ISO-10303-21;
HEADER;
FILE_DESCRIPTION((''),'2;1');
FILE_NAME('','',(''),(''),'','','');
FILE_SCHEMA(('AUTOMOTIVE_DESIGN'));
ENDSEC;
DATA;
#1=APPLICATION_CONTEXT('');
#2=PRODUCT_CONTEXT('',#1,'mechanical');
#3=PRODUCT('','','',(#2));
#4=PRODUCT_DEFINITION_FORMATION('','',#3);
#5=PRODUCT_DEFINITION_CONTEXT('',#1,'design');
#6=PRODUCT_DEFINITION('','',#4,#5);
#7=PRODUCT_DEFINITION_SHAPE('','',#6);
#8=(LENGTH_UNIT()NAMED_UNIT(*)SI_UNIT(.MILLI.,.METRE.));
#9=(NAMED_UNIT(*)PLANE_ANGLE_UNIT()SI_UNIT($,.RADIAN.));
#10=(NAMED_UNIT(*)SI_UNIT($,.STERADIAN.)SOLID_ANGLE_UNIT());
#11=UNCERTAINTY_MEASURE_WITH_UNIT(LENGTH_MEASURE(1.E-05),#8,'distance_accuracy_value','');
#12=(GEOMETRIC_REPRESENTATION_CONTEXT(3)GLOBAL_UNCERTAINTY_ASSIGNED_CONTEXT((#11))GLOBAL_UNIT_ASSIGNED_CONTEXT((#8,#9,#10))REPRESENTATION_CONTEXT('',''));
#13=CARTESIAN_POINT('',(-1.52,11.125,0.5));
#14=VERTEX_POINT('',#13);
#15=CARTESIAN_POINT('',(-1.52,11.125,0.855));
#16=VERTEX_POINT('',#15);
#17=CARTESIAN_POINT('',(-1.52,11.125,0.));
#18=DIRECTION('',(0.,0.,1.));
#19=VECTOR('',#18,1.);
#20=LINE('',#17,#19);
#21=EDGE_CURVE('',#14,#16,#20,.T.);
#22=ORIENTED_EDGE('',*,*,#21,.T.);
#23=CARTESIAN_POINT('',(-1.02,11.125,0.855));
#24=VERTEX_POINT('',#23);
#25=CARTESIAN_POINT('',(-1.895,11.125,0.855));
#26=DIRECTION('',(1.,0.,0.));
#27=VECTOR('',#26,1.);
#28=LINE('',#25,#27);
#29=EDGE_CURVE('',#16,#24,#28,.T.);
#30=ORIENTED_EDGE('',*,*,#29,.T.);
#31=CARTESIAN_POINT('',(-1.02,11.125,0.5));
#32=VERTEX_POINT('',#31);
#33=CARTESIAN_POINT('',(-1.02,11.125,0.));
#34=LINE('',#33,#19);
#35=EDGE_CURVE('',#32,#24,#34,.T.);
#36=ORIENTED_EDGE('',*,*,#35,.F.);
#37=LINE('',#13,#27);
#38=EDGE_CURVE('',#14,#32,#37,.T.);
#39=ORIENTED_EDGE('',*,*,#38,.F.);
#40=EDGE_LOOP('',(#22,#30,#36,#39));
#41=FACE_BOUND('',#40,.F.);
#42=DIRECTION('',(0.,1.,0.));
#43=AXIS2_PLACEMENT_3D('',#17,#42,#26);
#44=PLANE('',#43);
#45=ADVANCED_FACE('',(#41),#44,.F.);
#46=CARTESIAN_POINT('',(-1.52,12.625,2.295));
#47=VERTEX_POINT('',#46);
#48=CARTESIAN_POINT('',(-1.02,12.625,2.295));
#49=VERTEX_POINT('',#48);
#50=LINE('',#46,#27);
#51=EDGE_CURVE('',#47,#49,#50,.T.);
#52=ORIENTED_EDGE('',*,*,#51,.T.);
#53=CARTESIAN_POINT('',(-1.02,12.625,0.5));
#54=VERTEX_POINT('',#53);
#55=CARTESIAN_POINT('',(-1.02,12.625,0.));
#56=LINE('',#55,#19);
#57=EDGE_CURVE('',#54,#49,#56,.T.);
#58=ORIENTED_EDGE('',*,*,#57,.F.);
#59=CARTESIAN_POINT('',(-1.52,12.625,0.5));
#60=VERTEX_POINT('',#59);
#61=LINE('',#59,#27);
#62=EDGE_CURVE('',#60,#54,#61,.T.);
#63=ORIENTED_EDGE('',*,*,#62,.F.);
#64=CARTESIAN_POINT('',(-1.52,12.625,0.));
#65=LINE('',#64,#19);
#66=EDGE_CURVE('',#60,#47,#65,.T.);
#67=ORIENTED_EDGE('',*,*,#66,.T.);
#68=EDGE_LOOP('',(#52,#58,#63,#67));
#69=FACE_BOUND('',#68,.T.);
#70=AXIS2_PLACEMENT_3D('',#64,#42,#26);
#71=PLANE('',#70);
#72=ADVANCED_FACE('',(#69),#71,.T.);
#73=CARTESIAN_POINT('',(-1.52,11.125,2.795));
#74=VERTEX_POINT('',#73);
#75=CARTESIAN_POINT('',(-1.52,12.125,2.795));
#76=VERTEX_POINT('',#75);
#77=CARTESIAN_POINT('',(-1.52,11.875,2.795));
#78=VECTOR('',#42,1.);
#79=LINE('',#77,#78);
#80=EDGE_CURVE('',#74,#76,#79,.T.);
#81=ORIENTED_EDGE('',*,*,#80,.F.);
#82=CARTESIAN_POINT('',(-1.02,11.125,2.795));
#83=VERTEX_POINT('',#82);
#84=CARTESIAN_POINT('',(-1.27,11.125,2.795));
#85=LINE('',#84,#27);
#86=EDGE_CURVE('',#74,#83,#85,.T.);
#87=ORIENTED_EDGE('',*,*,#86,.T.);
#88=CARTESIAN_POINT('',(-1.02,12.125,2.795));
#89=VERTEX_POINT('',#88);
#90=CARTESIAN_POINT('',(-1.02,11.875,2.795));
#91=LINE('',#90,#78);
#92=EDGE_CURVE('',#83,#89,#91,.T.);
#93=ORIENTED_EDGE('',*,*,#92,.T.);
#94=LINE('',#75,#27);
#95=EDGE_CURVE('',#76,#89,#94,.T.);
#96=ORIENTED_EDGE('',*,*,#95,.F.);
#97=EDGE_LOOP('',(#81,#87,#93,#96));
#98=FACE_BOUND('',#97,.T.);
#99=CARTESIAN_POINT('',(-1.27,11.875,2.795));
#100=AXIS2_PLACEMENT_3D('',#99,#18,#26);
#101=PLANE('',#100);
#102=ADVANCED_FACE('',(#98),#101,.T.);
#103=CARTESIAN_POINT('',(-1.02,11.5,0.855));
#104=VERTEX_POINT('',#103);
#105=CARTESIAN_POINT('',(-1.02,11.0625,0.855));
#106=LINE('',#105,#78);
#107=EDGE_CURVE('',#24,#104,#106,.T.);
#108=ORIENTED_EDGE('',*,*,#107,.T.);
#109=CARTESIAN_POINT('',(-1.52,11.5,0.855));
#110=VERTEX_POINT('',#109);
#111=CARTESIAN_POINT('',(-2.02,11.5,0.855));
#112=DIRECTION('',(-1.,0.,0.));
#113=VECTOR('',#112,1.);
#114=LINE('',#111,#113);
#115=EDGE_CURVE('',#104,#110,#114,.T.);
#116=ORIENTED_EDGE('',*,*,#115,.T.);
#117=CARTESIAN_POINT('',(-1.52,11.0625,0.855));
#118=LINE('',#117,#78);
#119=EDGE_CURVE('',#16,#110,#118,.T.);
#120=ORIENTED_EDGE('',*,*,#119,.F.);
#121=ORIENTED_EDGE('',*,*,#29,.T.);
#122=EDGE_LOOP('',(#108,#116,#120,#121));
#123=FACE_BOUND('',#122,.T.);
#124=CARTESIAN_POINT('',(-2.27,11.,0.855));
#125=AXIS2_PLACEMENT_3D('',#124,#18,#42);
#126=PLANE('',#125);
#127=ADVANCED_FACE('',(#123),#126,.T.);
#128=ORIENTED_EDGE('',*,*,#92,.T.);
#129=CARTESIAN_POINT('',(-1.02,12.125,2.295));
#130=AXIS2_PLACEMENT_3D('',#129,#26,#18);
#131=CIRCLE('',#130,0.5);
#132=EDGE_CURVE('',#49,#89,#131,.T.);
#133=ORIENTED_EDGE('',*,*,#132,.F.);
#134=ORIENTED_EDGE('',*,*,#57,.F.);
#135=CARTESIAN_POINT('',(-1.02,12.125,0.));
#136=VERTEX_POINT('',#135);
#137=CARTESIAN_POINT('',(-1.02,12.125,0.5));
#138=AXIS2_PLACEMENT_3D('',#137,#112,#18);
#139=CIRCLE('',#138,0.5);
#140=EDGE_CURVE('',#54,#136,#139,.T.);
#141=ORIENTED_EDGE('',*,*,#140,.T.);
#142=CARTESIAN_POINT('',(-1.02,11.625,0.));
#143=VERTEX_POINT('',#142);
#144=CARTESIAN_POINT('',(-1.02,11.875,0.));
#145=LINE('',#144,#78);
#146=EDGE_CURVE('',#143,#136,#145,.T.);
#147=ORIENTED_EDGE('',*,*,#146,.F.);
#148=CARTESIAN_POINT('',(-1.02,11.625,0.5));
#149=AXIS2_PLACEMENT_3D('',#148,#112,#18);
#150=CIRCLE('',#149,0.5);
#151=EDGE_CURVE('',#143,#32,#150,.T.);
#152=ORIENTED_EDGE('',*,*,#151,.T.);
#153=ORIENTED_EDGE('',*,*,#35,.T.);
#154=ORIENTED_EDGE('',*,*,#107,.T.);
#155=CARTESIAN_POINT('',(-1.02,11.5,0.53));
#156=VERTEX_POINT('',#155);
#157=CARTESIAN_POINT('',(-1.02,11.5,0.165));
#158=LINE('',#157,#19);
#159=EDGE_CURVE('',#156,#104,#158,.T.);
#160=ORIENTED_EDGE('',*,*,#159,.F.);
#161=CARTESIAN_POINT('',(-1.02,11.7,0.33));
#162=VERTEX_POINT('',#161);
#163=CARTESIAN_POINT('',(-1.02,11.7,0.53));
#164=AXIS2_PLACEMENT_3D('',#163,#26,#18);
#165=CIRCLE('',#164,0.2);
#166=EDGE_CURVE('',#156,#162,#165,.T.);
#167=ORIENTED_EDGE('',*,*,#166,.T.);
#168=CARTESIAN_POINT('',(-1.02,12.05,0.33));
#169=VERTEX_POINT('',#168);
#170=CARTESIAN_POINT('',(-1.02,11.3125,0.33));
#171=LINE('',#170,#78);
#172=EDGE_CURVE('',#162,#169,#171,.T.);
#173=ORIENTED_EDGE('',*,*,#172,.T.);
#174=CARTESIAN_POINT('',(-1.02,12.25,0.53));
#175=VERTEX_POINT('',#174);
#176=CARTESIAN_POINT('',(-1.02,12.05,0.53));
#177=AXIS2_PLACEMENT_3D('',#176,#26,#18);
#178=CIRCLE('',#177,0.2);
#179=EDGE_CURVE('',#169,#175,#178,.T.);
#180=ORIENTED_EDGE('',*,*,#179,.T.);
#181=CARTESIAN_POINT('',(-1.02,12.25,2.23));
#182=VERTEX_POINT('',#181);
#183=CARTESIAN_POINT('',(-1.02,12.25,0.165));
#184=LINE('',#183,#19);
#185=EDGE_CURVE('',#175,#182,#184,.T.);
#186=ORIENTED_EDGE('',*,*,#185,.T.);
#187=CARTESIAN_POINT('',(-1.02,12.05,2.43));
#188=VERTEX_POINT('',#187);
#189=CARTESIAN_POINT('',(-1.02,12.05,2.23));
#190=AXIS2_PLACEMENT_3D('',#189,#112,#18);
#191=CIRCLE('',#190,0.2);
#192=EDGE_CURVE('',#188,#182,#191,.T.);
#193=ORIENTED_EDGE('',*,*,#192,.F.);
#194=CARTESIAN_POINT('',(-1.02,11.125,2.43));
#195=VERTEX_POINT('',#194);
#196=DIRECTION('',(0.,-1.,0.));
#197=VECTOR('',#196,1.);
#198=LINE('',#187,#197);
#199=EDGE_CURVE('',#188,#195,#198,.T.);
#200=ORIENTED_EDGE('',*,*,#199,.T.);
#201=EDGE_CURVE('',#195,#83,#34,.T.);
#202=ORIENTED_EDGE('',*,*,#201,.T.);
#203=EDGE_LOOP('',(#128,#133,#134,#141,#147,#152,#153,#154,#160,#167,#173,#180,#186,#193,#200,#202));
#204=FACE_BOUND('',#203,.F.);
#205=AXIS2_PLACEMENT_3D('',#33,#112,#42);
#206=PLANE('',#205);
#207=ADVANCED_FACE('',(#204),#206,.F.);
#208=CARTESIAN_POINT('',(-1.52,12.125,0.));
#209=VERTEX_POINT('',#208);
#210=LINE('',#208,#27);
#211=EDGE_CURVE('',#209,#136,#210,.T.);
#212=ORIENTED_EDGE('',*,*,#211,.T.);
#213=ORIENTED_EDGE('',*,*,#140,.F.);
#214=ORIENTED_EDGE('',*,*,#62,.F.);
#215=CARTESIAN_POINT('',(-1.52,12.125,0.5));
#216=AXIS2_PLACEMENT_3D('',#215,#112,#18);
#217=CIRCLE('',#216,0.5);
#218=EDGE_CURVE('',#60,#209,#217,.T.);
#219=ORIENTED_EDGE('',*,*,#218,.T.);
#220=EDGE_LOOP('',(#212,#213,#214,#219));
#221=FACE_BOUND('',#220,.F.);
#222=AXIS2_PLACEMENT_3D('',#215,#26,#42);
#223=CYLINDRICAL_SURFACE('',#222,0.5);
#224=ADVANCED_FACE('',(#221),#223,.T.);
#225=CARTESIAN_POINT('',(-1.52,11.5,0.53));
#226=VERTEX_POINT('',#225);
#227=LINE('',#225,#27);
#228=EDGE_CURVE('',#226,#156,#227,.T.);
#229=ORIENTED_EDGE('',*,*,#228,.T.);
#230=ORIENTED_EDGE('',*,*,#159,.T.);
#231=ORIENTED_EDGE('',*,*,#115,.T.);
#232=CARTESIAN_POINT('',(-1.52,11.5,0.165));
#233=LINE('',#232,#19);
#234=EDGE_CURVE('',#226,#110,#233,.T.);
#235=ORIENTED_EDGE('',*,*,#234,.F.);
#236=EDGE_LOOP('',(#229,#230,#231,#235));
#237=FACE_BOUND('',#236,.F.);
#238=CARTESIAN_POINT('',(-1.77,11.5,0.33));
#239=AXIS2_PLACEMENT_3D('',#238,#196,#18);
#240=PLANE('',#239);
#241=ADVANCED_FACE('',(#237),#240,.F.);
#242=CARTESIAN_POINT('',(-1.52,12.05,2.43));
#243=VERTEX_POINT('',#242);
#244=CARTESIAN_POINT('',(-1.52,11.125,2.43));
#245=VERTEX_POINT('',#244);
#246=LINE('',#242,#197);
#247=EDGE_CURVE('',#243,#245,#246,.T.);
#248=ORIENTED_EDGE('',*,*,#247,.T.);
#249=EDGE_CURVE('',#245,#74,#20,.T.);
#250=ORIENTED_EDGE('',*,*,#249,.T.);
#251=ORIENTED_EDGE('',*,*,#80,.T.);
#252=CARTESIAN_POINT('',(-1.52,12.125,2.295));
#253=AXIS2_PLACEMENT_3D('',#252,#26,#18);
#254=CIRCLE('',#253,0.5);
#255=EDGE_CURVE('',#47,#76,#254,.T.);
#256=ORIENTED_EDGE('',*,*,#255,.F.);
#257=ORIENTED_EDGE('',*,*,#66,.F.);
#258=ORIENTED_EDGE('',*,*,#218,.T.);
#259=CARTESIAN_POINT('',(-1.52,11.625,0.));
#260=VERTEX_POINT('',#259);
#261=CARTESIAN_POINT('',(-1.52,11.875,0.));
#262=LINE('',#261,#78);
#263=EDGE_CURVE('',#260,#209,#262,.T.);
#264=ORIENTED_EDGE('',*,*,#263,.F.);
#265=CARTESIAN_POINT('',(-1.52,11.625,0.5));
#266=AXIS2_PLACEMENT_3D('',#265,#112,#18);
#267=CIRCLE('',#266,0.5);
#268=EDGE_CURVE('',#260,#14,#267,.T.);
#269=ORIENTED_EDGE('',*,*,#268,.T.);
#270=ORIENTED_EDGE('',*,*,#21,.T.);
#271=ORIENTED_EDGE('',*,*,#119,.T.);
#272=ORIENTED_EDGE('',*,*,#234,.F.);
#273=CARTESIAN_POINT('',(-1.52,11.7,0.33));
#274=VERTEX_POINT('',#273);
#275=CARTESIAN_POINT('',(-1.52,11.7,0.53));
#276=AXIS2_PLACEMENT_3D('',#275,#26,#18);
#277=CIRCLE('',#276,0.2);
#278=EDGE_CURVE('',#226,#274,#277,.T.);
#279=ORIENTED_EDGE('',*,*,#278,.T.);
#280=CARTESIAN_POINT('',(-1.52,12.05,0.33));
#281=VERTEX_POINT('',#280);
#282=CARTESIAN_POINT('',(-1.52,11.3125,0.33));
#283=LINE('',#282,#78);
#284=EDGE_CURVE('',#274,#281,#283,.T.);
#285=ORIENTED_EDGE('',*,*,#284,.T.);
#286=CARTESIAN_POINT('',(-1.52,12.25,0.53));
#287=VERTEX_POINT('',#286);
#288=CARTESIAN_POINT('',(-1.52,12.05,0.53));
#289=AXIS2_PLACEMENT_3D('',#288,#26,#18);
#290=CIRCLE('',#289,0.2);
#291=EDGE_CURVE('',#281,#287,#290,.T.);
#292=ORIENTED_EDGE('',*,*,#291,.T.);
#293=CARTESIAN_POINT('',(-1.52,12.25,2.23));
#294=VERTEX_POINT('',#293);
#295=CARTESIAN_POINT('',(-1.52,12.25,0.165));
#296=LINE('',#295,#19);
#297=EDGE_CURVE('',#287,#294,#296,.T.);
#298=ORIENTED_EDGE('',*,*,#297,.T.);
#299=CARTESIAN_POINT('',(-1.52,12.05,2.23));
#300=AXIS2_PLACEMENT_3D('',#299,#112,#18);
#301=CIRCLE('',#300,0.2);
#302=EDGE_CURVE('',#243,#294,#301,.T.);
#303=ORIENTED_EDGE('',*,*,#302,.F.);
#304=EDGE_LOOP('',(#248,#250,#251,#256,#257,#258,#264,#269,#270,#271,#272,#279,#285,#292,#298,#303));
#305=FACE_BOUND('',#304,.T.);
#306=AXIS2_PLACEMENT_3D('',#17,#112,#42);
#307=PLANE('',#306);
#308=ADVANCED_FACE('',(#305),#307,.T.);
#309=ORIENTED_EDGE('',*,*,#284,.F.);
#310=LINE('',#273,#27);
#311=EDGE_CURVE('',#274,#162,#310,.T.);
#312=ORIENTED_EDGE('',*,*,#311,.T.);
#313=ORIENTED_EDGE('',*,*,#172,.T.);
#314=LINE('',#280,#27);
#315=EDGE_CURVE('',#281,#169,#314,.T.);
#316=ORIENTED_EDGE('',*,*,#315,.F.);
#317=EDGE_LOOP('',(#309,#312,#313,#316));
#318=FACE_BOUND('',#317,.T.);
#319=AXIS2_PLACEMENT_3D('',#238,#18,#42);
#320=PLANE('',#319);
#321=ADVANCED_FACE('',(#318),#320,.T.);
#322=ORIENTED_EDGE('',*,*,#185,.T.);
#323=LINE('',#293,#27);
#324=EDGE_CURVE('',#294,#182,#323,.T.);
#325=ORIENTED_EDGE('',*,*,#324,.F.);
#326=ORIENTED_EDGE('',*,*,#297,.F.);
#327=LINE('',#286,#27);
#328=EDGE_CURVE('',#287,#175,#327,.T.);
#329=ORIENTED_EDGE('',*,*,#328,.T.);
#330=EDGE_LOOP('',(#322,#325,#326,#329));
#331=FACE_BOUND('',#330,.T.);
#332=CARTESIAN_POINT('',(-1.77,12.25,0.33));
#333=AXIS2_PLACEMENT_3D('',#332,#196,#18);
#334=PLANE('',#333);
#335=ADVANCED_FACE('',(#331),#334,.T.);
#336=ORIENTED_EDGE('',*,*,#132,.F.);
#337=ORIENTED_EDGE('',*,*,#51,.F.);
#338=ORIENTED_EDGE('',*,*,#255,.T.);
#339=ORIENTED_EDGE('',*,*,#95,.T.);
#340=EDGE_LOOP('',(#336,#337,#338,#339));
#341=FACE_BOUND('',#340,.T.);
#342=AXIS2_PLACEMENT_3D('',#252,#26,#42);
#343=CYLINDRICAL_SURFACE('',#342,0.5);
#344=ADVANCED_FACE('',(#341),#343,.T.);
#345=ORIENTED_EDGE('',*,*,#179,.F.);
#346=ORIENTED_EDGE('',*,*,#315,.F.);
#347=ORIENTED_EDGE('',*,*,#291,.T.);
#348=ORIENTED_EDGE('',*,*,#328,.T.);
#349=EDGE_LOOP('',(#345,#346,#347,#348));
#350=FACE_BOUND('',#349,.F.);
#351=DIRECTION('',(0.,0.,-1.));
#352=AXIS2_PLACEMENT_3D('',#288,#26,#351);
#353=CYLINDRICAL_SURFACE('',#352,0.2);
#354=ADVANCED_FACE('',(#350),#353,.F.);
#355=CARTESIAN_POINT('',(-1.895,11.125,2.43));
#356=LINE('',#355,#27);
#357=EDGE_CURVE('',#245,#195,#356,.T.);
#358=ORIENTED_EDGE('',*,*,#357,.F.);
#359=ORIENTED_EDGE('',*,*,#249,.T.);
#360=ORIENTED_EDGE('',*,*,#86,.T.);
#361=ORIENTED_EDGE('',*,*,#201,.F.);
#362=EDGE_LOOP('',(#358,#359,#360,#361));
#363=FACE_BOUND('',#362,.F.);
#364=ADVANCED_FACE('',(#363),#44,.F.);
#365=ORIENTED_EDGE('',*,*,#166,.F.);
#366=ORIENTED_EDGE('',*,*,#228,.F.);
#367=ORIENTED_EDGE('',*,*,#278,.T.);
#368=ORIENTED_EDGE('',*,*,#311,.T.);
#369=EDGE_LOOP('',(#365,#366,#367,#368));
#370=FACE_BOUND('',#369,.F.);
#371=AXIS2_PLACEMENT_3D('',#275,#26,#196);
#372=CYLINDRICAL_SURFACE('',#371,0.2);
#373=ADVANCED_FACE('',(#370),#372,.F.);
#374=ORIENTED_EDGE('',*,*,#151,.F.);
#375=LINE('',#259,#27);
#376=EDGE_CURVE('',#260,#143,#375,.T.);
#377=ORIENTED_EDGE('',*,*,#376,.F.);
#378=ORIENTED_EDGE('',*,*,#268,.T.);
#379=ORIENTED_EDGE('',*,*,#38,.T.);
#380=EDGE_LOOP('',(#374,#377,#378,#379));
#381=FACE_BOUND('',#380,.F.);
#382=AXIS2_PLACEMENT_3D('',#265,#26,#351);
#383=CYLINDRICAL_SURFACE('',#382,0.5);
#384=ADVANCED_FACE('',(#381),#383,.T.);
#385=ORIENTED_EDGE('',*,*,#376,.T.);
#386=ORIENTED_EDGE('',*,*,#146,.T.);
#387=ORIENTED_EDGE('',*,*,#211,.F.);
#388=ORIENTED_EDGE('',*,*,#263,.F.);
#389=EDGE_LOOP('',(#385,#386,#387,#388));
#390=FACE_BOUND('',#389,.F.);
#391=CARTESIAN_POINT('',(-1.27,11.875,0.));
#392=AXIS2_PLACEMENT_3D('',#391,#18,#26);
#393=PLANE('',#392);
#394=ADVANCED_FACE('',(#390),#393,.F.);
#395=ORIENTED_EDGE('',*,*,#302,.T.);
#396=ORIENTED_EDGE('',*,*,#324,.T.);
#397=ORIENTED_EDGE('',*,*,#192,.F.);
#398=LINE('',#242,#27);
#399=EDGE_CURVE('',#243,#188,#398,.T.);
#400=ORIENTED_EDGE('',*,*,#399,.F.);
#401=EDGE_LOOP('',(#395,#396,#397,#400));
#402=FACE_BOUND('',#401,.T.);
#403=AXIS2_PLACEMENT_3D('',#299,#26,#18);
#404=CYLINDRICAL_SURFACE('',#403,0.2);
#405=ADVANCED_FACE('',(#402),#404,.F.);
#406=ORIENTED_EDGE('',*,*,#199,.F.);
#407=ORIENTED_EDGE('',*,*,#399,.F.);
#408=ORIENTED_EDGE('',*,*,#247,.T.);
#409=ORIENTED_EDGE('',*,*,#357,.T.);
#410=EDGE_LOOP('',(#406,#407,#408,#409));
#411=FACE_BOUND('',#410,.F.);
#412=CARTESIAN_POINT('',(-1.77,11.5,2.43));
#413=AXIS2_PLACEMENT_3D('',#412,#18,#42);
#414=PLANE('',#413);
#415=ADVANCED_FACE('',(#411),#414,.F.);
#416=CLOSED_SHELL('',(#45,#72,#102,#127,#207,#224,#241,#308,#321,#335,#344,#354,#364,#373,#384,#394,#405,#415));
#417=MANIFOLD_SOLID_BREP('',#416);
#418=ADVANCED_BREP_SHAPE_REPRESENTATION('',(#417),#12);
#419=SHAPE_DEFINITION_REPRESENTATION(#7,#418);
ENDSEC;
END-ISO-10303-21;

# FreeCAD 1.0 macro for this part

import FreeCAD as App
import Part
import Sketcher
from FreeCAD import Vector
Q = App.Units.Quantity


def edges_at(feature, points):
    """Names of the edges that pass closest to the given points."""
    edges = feature.Shape.Edges
    near = lambda p: min(range(len(edges)), key=lambda i: edges[i].distToShape(Part.Vertex(*p))[0])
    return sorted({f"Edge{near(p) + 1}" for p in points})

doc = App.newDocument("Part")
body = doc.addObject("PartDesign::Body", "Body")

# Sketch on XY plane
sketch1 = doc.addObject("Sketcher::SketchObject", "Sketch")
body.addObject(sketch1)
sketch1.AttachmentSupport = (doc.XY_Plane, [""])
sketch1.MapMode = "FlatFace"
sketch1.addGeometry([
    Part.LineSegment(Vector(-0.2, 12.6, 0), Vector(-0.2, 11.1, 0)),
    Part.LineSegment(Vector(-0.2, 11.1, 0), Vector(0.2, 11.1, 0)),
    Part.LineSegment(Vector(0.2, 11.1, 0), Vector(0.2, 12.6, 0)),
    Part.LineSegment(Vector(0.2, 12.6, 0), Vector(-0.2, 12.6, 0)),
], False)
sketch1.addConstraint([
    Sketcher.Constraint("Coincident", 0, 2, 1, 1),
    Sketcher.Constraint("Coincident", 1, 2, 2, 1),
    Sketcher.Constraint("Coincident", 2, 2, 3, 1),
    Sketcher.Constraint("Coincident", 3, 2, 0, 1),
    Sketcher.Constraint("Vertical", 0),
    Sketcher.Constraint("Horizontal", 1),
    Sketcher.Constraint("Vertical", 2),
    Sketcher.Constraint("Horizontal", 3),
    Sketcher.Constraint("DistanceX", 1, 1, 1, 2, Q("0.5 mm")),
    Sketcher.Constraint("DistanceY", 0, 2, 0, 1, Q("1.5 mm")),
    Sketcher.Constraint("DistanceX", 0, 2, -1, 1, Q("0.25 mm")),
    Sketcher.Constraint("DistanceY", -1, 1, 0, 2, Q("11.125 mm")),
])
pad1 = doc.addObject("PartDesign::Pad", "Pad")
body.addObject(pad1)
pad1.Profile = sketch1
pad1.Length = 2.795
doc.recompute()

fillet = doc.addObject("PartDesign::Fillet", "Fillet")
body.addObject(fillet)
fillet.Base = (pad1, edges_at(pad1, [(0, 12.625, 0)]))
fillet.Radius = 0.5
doc.recompute()

fillet2 = doc.addObject("PartDesign::Fillet", "Fillet001")
body.addObject(fillet2)
fillet2.Base = (fillet, edges_at(fillet, [(0, 12.625, 2.795)]))
fillet2.Radius = 0.5
doc.recompute()

fillet3 = doc.addObject("PartDesign::Fillet", "Fillet002")
body.addObject(fillet3)
fillet3.Base = (fillet2, edges_at(fillet2, [(0, 11.125, 0)]))
fillet3.Radius = 0.5

# Sketch on YZ plane
sketch2 = doc.addObject("Sketcher::SketchObject", "Sketch001")
body.addObject(sketch2)
sketch2.AttachmentSupport = (doc.YZ_Plane, [""])
sketch2.MapMode = "FlatFace"
sketch2.AttachmentOffset = App.Placement(Vector(0, 0, -0.5), App.Rotation())
sketch2.addGeometry([
    Part.LineSegment(Vector(11.5, 2.4, 0), Vector(11.5, 0.3, 0)),
    Part.LineSegment(Vector(11.5, 0.3, 0), Vector(12.2, 0.3, 0)),
    Part.LineSegment(Vector(12.2, 0.3, 0), Vector(12.2, 2.4, 0)),
    Part.LineSegment(Vector(12.2, 2.4, 0), Vector(11.5, 2.4, 0)),
], False)
sketch2.addConstraint([
    Sketcher.Constraint("Coincident", 0, 2, 1, 1),
    Sketcher.Constraint("Coincident", 1, 2, 2, 1),
    Sketcher.Constraint("Coincident", 2, 2, 3, 1),
    Sketcher.Constraint("Coincident", 3, 2, 0, 1),
    Sketcher.Constraint("Vertical", 0),
    Sketcher.Constraint("Horizontal", 1),
    Sketcher.Constraint("Vertical", 2),
    Sketcher.Constraint("Horizontal", 3),
    Sketcher.Constraint("DistanceY", 0, 2, 0, 1, Q("2.1 mm")),
    Sketcher.Constraint("DistanceX", 1, 1, 1, 2, Q("0.75 mm")),
    Sketcher.Constraint("DistanceX", -1, 1, 0, 2, Q("11.5 mm")),
    Sketcher.Constraint("DistanceY", -1, 1, 0, 2, Q("0.33 mm")),
])
pocket1 = doc.addObject("PartDesign::Pocket", "Pocket")
body.addObject(pocket1)
pocket1.Profile = sketch2
pocket1.Length = 1
pocket1.Reversed = True
doc.recompute()

fillet4 = doc.addObject("PartDesign::Fillet", "Fillet003")
body.addObject(fillet4)
fillet4.Base = (pocket1, edges_at(pocket1, [(0, 11.5, 0.33)]))
fillet4.Radius = 0.2
doc.recompute()

fillet5 = doc.addObject("PartDesign::Fillet", "Fillet004")
body.addObject(fillet5)
fillet5.Base = (fillet4, edges_at(fillet4, [(0, 12.25, 0.33)]))
fillet5.Radius = 0.2
doc.recompute()

fillet6 = doc.addObject("PartDesign::Fillet", "Fillet005")
body.addObject(fillet6)
fillet6.Base = (fillet5, edges_at(fillet5, [(0, 11.5, 2.43)]))
fillet6.Radius = 0.2
doc.recompute()

fillet7 = doc.addObject("PartDesign::Fillet", "Fillet006")
body.addObject(fillet7)
fillet7.Base = (fillet6, edges_at(fillet6, [(0, 12.25, 2.43)]))
fillet7.Radius = 0.2

# Sketch on YZ plane
sketch3 = doc.addObject("Sketcher::SketchObject", "Sketch002")
body.addObject(sketch3)
sketch3.AttachmentSupport = (doc.YZ_Plane, [""])
sketch3.MapMode = "FlatFace"
sketch3.AttachmentOffset = App.Placement(Vector(0, 0, -1), App.Rotation())
sketch3.addGeometry([
    Part.LineSegment(Vector(11, 2.4, 0), Vector(11, 0.9, 0)),
    Part.LineSegment(Vector(11, 0.9, 0), Vector(12, 0.9, 0)),
    Part.LineSegment(Vector(12, 0.9, 0), Vector(12, 2.4, 0)),
    Part.LineSegment(Vector(12, 2.4, 0), Vector(11, 2.4, 0)),
], False)
sketch3.addConstraint([
    Sketcher.Constraint("Coincident", 0, 2, 1, 1),
    Sketcher.Constraint("Coincident", 1, 2, 2, 1),
    Sketcher.Constraint("Coincident", 2, 2, 3, 1),
    Sketcher.Constraint("Coincident", 3, 2, 0, 1),
    Sketcher.Constraint("Vertical", 0),
    Sketcher.Constraint("Horizontal", 1),
    Sketcher.Constraint("Vertical", 2),
    Sketcher.Constraint("Horizontal", 3),
    Sketcher.Constraint("DistanceX", 1, 1, 1, 2, Q("1 mm")),
    Sketcher.Constraint("DistanceX", -1, 1, 0, 2, Q("11 mm")),
    Sketcher.Constraint("DistanceY", 0, 2, 0, 1, Q("1.575 mm")),
    Sketcher.Constraint("DistanceY", -1, 1, 2, 2, Q("2.43 mm")),
])
pocket2 = doc.addObject("PartDesign::Pocket", "Pocket001")
body.addObject(pocket2)
pocket2.Profile = sketch3
pocket2.Length = 3
pocket2.Reversed = True
body2 = doc.addObject("PartDesign::Body", "Body001")
doc.recompute()

body.Placement = App.Placement(Vector(-1.27, 0, 0), App.Rotation(Vector(0, 0, 1), 0))
boolean = doc.addObject("PartDesign::Boolean", "Boolean")
body2.addObject(boolean)
boolean.Type = "Fuse"
boolean.addObjects([body])

doc.recompute()
